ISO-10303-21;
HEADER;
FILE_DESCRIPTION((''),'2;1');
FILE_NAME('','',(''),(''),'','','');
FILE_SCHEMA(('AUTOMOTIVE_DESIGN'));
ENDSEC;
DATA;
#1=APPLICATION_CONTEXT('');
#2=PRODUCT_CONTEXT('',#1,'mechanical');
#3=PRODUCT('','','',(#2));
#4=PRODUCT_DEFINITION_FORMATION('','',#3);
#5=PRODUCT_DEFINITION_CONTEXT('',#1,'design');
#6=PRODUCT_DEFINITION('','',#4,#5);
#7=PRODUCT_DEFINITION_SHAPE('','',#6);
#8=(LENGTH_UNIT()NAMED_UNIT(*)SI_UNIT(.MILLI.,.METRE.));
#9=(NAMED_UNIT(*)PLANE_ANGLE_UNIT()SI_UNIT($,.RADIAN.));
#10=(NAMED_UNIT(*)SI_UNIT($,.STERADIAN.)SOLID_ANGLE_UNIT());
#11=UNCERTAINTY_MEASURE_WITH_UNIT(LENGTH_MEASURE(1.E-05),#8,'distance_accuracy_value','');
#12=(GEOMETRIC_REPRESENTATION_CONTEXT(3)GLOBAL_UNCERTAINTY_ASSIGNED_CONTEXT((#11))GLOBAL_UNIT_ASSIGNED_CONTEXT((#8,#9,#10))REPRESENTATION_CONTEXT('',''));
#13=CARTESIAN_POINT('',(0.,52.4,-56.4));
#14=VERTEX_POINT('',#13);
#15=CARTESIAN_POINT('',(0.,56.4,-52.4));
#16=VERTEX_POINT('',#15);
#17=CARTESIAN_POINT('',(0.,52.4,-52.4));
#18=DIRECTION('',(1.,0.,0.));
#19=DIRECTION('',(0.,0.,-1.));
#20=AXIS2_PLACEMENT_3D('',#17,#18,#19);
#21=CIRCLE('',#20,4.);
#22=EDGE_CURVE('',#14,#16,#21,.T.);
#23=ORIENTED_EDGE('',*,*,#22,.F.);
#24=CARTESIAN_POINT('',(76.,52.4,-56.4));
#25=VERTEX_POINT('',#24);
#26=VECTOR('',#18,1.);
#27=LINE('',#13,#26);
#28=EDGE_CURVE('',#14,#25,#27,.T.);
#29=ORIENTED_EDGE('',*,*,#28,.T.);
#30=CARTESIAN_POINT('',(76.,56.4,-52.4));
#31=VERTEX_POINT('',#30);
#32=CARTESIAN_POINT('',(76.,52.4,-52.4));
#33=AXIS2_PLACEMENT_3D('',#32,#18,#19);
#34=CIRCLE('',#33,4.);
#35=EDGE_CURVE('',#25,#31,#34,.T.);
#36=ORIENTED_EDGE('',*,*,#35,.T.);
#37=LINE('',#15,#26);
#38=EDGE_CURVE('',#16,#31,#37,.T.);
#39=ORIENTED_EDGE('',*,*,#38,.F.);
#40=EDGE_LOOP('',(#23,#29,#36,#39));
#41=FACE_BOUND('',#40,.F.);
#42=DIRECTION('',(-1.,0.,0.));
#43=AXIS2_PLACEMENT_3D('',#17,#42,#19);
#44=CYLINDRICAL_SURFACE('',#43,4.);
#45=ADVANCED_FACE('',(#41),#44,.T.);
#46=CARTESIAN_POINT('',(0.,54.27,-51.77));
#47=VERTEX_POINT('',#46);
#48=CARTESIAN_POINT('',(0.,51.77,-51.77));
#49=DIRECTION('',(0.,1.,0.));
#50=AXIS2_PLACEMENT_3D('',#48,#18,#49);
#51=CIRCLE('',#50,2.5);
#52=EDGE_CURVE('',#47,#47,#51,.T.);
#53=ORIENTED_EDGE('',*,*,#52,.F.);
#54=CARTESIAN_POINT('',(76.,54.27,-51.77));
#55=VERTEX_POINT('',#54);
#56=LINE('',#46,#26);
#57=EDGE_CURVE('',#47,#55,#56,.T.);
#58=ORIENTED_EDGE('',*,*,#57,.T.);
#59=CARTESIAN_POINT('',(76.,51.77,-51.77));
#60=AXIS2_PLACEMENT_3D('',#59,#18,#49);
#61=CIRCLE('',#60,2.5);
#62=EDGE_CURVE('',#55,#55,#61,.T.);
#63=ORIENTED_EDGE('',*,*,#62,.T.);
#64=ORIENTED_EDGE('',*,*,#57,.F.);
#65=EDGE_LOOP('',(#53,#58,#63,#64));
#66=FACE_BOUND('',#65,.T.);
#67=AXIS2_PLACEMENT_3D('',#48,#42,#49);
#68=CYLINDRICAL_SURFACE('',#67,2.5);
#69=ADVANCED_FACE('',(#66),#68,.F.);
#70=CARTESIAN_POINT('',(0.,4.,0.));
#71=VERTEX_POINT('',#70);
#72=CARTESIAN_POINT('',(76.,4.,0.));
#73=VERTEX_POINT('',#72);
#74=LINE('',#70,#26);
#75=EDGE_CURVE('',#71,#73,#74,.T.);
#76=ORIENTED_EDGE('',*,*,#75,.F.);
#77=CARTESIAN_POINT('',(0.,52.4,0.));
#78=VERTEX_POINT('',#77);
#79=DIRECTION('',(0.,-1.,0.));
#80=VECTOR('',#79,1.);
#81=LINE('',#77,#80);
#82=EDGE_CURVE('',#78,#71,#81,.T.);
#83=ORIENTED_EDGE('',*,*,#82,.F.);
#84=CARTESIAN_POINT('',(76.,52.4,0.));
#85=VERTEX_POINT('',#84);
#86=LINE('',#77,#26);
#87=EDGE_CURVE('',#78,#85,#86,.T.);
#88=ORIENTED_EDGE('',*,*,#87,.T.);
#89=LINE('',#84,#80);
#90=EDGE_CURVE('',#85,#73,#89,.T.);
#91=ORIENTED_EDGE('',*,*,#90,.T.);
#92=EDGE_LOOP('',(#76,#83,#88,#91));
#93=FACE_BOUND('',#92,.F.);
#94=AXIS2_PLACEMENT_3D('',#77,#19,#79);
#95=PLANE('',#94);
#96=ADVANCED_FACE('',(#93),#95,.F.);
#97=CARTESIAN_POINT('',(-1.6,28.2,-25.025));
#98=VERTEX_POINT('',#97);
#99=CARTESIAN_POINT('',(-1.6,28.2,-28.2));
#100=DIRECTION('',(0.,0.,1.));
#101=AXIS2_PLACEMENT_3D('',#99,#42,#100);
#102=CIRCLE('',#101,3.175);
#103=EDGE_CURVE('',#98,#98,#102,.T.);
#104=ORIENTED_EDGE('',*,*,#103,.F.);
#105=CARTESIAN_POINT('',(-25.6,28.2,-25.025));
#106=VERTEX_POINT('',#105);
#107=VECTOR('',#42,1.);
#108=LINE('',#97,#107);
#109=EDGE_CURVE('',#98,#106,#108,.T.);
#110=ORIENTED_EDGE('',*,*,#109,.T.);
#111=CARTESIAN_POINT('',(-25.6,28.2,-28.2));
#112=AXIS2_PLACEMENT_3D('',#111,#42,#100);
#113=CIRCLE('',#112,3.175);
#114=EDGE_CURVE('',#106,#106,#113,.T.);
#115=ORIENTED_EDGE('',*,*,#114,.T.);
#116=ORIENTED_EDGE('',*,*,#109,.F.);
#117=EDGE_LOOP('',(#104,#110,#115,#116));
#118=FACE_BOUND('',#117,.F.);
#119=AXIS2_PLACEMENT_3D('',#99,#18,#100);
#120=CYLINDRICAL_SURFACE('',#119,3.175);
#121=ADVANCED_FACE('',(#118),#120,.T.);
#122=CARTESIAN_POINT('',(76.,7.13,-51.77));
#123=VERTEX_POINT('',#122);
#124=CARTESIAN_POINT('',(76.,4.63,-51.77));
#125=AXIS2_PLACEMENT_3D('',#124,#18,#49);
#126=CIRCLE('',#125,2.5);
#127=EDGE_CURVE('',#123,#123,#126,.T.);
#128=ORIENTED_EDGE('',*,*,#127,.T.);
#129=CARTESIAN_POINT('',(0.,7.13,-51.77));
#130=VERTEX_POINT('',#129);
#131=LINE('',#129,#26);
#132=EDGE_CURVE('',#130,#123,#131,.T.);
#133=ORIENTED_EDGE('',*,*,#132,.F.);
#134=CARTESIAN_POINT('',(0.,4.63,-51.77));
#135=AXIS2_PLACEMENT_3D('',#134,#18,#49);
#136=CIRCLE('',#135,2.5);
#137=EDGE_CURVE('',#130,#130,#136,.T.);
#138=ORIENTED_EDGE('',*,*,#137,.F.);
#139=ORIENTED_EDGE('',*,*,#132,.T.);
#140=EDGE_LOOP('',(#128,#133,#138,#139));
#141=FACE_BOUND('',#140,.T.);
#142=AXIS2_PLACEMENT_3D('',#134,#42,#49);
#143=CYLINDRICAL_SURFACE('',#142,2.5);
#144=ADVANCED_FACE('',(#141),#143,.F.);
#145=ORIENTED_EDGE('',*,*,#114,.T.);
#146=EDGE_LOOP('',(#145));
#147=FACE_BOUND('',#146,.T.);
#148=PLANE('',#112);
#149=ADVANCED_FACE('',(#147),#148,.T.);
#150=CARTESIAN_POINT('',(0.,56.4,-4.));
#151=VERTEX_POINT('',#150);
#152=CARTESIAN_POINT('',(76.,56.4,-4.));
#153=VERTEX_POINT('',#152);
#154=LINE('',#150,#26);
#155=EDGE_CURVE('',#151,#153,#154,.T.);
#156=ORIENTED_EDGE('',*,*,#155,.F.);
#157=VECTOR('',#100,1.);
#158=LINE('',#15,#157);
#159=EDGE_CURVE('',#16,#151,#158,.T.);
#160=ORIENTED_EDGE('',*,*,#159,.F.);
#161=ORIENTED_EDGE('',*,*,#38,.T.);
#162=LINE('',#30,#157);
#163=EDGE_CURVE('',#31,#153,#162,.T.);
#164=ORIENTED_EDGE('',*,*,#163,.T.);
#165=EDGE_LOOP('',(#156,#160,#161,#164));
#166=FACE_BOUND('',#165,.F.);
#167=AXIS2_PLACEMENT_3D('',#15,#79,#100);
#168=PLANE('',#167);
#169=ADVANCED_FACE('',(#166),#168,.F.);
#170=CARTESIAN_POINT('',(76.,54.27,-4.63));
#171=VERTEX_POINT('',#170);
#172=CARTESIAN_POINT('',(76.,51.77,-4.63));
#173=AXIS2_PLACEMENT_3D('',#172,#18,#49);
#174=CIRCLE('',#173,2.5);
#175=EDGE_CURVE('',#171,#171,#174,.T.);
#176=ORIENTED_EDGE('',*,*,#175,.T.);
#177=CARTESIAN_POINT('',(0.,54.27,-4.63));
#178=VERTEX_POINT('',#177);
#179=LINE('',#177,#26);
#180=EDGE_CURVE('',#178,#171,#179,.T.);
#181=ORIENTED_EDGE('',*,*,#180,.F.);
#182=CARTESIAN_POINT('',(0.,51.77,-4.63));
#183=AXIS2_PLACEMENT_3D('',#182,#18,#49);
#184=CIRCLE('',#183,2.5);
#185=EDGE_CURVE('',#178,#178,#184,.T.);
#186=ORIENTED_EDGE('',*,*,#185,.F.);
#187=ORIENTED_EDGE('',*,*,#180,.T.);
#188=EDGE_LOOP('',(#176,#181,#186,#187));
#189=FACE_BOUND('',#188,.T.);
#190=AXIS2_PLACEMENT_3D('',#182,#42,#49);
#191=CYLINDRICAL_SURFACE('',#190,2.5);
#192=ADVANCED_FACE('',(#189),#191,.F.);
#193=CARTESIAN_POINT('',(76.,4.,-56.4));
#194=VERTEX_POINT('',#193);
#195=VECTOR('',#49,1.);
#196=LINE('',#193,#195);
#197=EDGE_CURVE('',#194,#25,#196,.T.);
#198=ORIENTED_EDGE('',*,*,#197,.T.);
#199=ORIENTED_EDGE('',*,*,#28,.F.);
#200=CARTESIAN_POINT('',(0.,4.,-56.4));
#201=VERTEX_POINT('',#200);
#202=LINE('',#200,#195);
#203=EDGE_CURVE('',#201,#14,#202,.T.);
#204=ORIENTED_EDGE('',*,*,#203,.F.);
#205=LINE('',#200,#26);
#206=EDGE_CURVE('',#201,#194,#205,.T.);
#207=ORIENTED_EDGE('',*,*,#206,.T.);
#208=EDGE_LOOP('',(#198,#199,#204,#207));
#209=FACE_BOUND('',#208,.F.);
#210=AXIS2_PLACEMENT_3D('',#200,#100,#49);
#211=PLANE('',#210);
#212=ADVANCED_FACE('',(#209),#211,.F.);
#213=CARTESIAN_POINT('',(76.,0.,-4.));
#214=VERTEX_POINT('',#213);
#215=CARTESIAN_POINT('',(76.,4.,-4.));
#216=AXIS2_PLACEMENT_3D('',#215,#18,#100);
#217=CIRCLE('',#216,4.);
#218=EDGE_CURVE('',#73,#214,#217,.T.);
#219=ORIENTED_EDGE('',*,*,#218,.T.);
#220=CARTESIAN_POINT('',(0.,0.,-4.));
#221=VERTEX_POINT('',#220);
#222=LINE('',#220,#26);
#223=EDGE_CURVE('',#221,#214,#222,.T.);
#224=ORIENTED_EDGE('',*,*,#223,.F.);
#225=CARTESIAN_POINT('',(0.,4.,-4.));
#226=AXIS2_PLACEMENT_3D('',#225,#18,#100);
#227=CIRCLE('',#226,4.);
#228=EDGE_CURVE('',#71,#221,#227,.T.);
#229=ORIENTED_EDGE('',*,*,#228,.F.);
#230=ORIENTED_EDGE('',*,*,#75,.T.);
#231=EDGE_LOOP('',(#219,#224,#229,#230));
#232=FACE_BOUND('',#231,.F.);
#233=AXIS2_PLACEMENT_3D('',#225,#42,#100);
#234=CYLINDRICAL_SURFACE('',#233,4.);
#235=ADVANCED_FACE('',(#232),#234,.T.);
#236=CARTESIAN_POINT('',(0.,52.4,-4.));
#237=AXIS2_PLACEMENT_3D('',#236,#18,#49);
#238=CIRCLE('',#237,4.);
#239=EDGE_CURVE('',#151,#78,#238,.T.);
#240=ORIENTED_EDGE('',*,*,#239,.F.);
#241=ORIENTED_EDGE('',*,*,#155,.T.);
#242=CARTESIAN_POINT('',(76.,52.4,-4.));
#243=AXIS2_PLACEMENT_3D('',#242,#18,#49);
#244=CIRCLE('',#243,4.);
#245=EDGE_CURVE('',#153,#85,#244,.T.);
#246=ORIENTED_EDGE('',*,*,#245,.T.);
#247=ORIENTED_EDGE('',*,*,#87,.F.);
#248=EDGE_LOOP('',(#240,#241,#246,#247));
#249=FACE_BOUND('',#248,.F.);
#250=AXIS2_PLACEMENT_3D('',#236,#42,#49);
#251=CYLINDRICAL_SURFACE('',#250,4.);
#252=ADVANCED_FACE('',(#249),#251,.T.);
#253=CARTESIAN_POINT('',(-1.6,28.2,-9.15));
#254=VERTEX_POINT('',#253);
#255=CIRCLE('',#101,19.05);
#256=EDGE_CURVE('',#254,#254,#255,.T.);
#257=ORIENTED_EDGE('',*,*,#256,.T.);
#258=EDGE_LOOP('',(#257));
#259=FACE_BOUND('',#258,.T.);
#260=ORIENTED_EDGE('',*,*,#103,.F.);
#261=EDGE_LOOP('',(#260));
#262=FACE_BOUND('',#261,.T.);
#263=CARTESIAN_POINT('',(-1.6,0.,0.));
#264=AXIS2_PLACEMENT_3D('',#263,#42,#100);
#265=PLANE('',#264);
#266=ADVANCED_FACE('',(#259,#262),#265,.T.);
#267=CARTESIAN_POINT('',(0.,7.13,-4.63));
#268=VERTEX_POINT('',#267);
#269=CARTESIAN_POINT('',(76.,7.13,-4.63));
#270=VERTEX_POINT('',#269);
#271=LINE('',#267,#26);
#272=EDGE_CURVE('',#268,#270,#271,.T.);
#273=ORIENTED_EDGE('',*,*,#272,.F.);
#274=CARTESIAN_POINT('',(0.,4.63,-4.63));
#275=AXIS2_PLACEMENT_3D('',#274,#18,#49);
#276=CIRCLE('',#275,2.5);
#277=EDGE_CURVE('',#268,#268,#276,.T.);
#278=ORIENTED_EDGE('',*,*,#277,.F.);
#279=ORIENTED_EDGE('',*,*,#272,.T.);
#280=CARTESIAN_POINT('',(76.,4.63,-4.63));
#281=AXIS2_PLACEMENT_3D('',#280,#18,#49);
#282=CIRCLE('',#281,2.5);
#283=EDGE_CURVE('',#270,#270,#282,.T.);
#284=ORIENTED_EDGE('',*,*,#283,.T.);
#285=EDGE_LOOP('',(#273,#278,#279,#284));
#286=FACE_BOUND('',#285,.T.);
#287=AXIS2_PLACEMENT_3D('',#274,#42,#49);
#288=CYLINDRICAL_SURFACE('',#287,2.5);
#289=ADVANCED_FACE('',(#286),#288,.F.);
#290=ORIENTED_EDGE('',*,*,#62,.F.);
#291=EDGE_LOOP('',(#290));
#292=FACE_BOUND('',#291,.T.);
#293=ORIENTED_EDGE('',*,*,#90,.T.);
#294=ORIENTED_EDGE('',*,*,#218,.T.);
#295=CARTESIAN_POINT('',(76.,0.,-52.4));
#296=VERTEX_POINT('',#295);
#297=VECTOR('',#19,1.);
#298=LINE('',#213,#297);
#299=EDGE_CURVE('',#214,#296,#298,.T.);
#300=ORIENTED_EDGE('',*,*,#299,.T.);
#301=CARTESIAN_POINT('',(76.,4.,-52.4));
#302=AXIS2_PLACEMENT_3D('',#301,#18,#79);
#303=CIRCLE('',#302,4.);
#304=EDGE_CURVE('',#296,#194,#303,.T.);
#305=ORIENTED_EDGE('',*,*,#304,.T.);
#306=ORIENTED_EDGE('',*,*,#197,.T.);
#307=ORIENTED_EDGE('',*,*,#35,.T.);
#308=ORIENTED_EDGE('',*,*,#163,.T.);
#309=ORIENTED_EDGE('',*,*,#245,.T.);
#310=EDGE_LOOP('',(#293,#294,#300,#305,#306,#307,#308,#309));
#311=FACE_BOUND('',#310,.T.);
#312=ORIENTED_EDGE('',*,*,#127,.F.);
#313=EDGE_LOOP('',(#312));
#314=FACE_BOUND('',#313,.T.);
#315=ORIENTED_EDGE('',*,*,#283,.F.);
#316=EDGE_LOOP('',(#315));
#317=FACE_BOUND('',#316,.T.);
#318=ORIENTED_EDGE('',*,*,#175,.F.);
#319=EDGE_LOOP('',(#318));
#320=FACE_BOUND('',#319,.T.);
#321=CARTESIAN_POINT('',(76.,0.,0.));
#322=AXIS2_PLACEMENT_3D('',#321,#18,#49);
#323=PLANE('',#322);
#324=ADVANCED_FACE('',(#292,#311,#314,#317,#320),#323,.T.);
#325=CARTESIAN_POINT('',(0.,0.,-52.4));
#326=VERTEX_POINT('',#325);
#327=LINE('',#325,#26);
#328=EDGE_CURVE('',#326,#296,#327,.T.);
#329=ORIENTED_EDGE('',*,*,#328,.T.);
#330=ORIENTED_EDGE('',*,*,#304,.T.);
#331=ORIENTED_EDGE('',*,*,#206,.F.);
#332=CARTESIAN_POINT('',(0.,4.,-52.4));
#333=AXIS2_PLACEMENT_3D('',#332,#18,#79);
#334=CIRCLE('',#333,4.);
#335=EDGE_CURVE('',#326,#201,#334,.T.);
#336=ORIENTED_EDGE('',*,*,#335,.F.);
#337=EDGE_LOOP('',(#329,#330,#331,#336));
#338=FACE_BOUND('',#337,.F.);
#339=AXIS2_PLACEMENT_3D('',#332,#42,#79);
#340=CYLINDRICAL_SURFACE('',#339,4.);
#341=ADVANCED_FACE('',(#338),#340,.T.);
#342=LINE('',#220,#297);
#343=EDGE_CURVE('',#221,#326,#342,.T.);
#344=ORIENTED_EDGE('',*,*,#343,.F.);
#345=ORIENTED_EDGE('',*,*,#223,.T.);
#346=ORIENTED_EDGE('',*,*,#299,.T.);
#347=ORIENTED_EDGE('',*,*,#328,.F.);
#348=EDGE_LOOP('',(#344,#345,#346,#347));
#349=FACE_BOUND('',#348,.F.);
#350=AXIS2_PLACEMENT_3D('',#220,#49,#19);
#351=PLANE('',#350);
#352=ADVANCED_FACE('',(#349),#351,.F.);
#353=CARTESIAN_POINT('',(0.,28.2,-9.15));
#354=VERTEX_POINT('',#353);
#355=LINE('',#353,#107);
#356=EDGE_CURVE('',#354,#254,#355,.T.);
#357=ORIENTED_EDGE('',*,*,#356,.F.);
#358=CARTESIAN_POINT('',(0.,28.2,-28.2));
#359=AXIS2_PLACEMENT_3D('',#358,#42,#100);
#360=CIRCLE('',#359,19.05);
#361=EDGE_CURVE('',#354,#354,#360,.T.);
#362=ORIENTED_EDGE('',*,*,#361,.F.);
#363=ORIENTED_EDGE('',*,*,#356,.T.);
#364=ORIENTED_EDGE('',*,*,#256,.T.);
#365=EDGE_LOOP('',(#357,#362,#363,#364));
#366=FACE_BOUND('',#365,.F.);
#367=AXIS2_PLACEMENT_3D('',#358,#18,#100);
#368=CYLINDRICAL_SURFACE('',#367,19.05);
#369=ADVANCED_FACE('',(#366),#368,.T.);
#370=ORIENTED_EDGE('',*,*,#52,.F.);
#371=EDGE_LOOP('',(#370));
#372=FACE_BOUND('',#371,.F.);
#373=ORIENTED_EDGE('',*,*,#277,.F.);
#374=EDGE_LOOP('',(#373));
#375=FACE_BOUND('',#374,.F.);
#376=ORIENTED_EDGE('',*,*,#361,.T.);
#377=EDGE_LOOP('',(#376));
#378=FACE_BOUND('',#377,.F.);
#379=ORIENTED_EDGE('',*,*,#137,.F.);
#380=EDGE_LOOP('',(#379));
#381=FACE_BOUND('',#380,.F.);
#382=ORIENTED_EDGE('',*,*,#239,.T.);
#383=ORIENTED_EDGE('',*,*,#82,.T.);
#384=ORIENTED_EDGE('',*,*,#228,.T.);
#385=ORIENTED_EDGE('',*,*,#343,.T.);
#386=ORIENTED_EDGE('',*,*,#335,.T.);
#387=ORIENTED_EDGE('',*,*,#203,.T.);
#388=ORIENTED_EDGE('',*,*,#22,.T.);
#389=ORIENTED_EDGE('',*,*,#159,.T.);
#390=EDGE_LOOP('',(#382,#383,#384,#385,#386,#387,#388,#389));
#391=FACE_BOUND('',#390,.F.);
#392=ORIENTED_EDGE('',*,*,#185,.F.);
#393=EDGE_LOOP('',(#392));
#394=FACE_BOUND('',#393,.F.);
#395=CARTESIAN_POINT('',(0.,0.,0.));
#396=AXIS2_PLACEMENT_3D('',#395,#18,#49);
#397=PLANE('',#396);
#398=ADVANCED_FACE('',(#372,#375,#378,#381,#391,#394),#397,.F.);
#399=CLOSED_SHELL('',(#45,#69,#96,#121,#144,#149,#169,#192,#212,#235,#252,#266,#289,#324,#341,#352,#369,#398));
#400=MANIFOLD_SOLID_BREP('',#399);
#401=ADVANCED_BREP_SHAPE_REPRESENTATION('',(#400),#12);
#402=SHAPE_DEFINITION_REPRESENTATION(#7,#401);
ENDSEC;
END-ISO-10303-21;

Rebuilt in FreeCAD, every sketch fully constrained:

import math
import FreeCAD as App
import Part
import Sketcher

V = App.Vector
Q = App.Units.Quantity

doc = App.newDocument("Part")
body = doc.addObject("PartDesign::Body", "Body")

sketch1 = body.newObject("Sketcher::SketchObject", "Sketch")
sketch1.AttachmentSupport = (doc.getObject("YZ_Plane"), [""])
sketch1.MapMode = "FlatFace"
sketch1.addGeometry([
    Part.ArcOfCircle(Part.Circle(V(52.4, -4, 0), V(0, 0, 1), 4), math.radians(0), math.radians(90)),
    Part.LineSegment(V(52.4, 0, 0), V(4, 0, 0)),
    Part.ArcOfCircle(Part.Circle(V(4, -4, 0), V(0, 0, 1), 4), math.radians(90), math.radians(180)),
    Part.LineSegment(V(0, -4, 0), V(0, -52.4, 0)),
    Part.ArcOfCircle(Part.Circle(V(4, -52.4, 0), V(0, 0, 1), 4), math.radians(180), math.radians(270)),
    Part.LineSegment(V(4, -56.4, 0), V(52.4, -56.4, 0)),
    Part.ArcOfCircle(Part.Circle(V(52.4, -52.4, 0), V(0, 0, 1), 4), math.radians(-90), math.radians(0)),
    Part.LineSegment(V(56.4, -52.4, 0), V(56.4, -4, 0)),
    Part.Circle(V(4.6, -51.8, 0), V(0, 0, 1), 2.5),
    Part.Circle(V(51.8, -51.8, 0), V(0, 0, 1), 2.5),
    Part.Circle(V(4.6, -4.6, 0), V(0, 0, 1), 2.5),
    Part.Circle(V(51.8, -4.6, 0), V(0, 0, 1), 2.5),
], False)
sketch1.addConstraint([
    Sketcher.Constraint("Tangent", 0, 2, 1, 1),
    Sketcher.Constraint("Tangent", 1, 2, 2, 1),
    Sketcher.Constraint("Tangent", 2, 2, 3, 1),
    Sketcher.Constraint("Tangent", 3, 2, 4, 1),
    Sketcher.Constraint("Tangent", 4, 2, 5, 1),
    Sketcher.Constraint("Tangent", 5, 2, 6, 1),
    Sketcher.Constraint("Tangent", 6, 2, 7, 1),
    Sketcher.Constraint("Tangent", 7, 2, 0, 1),
    Sketcher.Constraint("Horizontal", 1),
    Sketcher.Constraint("Vertical", 3),
    Sketcher.Constraint("Horizontal", 5),
    Sketcher.Constraint("Vertical", 7),
    Sketcher.Constraint("Equal", 0, 2),
    Sketcher.Constraint("Equal", 2, 4),
    Sketcher.Constraint("Equal", 4, 6),
    Sketcher.Constraint("Equal", 8, 9),
    Sketcher.Constraint("Equal", 9, 10),
    Sketcher.Constraint("Equal", 10, 11),
    Sketcher.Constraint("PointOnObject", 0, 2, -1),
    Sketcher.Constraint("PointOnObject", 2, 2, -2),
    Sketcher.Constraint("Horizontal", 8, 3, 9, 3),
    Sketcher.Constraint("Horizontal", 10, 3, 11, 3),
    Sketcher.Constraint("Vertical", 8, 3, 10, 3),
    Sketcher.Constraint("Vertical", 9, 3, 11, 3),
    Sketcher.Constraint("Equal", 5, 3),
    Sketcher.Constraint("Diameter", 8, Q("5 mm")),
    Sketcher.Constraint("Radius", 0, Q("4 mm")),
    Sketcher.Constraint("DistanceY", 4, 2, -1, 1, Q("56.4 mm")),
    Sketcher.Constraint("DistanceX", 8, 3, 9, 3, Q("47.14 mm")),
    Sketcher.Constraint("DistanceY", 8, 3, 10, 3, Q("47.14 mm")),
    Sketcher.Constraint("DistanceX", -1, 1, 8, 3, Q("4.63 mm")),
    Sketcher.Constraint("DistanceY", 8, 3, -1, 1, Q("51.77 mm")),
])
pad1 = body.newObject("PartDesign::Pad", "Pad")
pad1.Profile = sketch1
pad1.Length = 76

sketch2 = body.newObject("Sketcher::SketchObject", "Sketch001")
sketch2.AttachmentSupport = (doc.getObject("YZ_Plane"), [""])
sketch2.MapMode = "FlatFace"
sketch2.addGeometry(Part.Circle(V(28, -28, 0), V(0, 0, 1), 19), False)
sketch2.addConstraint([
    Sketcher.Constraint("Diameter", 0, Q("38.1 mm")),
    Sketcher.Constraint("DistanceX", -1, 1, 0, 3, Q("28.2 mm")),
    Sketcher.Constraint("DistanceY", 0, 3, -1, 1, Q("28.2 mm")),
])
pad2 = body.newObject("PartDesign::Pad", "Pad001")
pad2.Profile = sketch2
pad2.Length = 1.6
pad2.Reversed = True

sketch3 = body.newObject("Sketcher::SketchObject", "Sketch002")
sketch3.AttachmentSupport = (doc.getObject("YZ_Plane"), [""])
sketch3.MapMode = "FlatFace"
sketch3.AttachmentOffset = App.Placement(V(0, 0, -1.6), App.Rotation())
sketch3.addGeometry(Part.Circle(V(28.2, -28.2, 0), V(0, 0, 1), 3.2), False)
sketch3.addConstraint([
    Sketcher.Constraint("Diameter", 0, Q("6.35 mm")),
    Sketcher.Constraint("DistanceX", -1, 1, 0, 3, Q("28.2 mm")),
    Sketcher.Constraint("DistanceY", 0, 3, -1, 1, Q("28.2 mm")),
])
pad3 = body.newObject("PartDesign::Pad", "Pad002")
pad3.Profile = sketch3
pad3.Length = 24
pad3.Reversed = True

doc.recompute()
